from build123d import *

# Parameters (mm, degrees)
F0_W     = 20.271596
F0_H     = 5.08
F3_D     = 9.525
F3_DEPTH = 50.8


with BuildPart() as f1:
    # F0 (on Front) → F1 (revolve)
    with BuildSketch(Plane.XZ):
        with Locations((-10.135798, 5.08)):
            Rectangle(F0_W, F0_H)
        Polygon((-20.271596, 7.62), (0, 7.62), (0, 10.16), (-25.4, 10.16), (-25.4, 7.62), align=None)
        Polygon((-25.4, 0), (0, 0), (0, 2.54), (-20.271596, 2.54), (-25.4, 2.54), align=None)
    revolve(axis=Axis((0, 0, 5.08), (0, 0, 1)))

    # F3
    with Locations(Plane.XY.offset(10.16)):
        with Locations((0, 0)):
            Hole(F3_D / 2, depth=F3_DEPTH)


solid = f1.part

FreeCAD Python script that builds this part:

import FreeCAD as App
import Part
import Sketcher
Q = App.Units.Quantity


def add_polygon(sketch, points):
    """Adds a closed chain of lines whose ends are joined by coincident constraints."""
    first, n = sketch.GeometryCount, len(points)
    for a, b in zip(points, points[1:] + points[:1]):
        sketch.addGeometry(Part.LineSegment(App.Vector(*a, 0), App.Vector(*b, 0)), False)
    for i in range(n):
        sketch.addConstraint(Sketcher.Constraint("Coincident", first + i, 2, first + (i + 1) % n, 1))

doc = App.newDocument("Part")
body = doc.addObject("PartDesign::Body", "Body")

sketch1 = doc.addObject("Sketcher::SketchObject", "Sketch")
body.addObject(sketch1)
sketch1.AttachmentSupport = (doc.XZ_Plane, [""])
sketch1.MapMode = "FlatFace"
add_polygon(sketch1, [(-20.3, 7.6), (-20.3, 2.5), (-25.4, 2.5), (-25.4, 0), (0, 0), (0, 10.2), (-25.4, 10.2), (-25.4, 7.6)])
sketch1.addConstraint(Sketcher.Constraint("Vertical", 0))
sketch1.addConstraint(Sketcher.Constraint("Horizontal", 1))
sketch1.addConstraint(Sketcher.Constraint("Vertical", 2))
sketch1.addConstraint(Sketcher.Constraint("Horizontal", 3))
sketch1.addConstraint(Sketcher.Constraint("Vertical", 4))
sketch1.addConstraint(Sketcher.Constraint("Horizontal", 5))
sketch1.addConstraint(Sketcher.Constraint("Vertical", 6))
sketch1.addConstraint(Sketcher.Constraint("Horizontal", 7))
sketch1.addConstraint(Sketcher.Constraint("Coincident", 3, 2, -1, 1))
sketch1.addConstraint(Sketcher.Constraint("Vertical", 2, 2, 5, 2))
sketch1.addConstraint(Sketcher.Constraint("Equal", 2, 6))
sketch1.addConstraint(Sketcher.Constraint("DistanceX", 3, 1, 3, 2, Q("1 in")))
sketch1.addConstraint(Sketcher.Constraint("DistanceY", 0, 2, 0, 1, Q("0.2 in")))
sketch1.addConstraint(Sketcher.Constraint("DistanceY", 2, 2, 2, 1, Q("0.1 in")))
sketch1.addConstraint(Sketcher.Constraint("DistanceX", 1, 2, 1, 1, Q("5.128404 mm")))
revolution = doc.addObject("PartDesign::Revolution", "Revolution")
body.addObject(revolution)
revolution.Profile = sketch1
revolution.ReferenceAxis = (sketch1, ["V_Axis"])
revolution.Angle = 360

sketch2 = doc.addObject("Sketcher::SketchObject", "Sketch001")
body.addObject(sketch2)
sketch2.AttachmentSupport = (doc.XY_Plane, [""])
sketch2.MapMode = "FlatFace"
sketch2.AttachmentOffset = App.Placement(App.Vector(0, 0, 0.4 * 25.4), App.Rotation())
sketch2.addGeometry(Part.Circle(App.Vector(0, 0, 0), App.Vector(0, 0, 1), 4.8), False)
sketch2.addConstraint(Sketcher.Constraint("Coincident", 0, 3, -1, 1))
sketch2.addConstraint(Sketcher.Constraint("Diameter", 0, Q("0.375 in")))
doc.recompute()
hole = doc.addObject("PartDesign::Hole", "Hole")
body.addObject(hole)
hole.Profile = sketch2
hole.ThreadType = "None"
hole.Diameter = Q("0.375 in")
hole.DepthType = "Dimension"
hole.Depth = Q("2 in")
hole.DrillPoint = "Flat"

doc.recompute()
